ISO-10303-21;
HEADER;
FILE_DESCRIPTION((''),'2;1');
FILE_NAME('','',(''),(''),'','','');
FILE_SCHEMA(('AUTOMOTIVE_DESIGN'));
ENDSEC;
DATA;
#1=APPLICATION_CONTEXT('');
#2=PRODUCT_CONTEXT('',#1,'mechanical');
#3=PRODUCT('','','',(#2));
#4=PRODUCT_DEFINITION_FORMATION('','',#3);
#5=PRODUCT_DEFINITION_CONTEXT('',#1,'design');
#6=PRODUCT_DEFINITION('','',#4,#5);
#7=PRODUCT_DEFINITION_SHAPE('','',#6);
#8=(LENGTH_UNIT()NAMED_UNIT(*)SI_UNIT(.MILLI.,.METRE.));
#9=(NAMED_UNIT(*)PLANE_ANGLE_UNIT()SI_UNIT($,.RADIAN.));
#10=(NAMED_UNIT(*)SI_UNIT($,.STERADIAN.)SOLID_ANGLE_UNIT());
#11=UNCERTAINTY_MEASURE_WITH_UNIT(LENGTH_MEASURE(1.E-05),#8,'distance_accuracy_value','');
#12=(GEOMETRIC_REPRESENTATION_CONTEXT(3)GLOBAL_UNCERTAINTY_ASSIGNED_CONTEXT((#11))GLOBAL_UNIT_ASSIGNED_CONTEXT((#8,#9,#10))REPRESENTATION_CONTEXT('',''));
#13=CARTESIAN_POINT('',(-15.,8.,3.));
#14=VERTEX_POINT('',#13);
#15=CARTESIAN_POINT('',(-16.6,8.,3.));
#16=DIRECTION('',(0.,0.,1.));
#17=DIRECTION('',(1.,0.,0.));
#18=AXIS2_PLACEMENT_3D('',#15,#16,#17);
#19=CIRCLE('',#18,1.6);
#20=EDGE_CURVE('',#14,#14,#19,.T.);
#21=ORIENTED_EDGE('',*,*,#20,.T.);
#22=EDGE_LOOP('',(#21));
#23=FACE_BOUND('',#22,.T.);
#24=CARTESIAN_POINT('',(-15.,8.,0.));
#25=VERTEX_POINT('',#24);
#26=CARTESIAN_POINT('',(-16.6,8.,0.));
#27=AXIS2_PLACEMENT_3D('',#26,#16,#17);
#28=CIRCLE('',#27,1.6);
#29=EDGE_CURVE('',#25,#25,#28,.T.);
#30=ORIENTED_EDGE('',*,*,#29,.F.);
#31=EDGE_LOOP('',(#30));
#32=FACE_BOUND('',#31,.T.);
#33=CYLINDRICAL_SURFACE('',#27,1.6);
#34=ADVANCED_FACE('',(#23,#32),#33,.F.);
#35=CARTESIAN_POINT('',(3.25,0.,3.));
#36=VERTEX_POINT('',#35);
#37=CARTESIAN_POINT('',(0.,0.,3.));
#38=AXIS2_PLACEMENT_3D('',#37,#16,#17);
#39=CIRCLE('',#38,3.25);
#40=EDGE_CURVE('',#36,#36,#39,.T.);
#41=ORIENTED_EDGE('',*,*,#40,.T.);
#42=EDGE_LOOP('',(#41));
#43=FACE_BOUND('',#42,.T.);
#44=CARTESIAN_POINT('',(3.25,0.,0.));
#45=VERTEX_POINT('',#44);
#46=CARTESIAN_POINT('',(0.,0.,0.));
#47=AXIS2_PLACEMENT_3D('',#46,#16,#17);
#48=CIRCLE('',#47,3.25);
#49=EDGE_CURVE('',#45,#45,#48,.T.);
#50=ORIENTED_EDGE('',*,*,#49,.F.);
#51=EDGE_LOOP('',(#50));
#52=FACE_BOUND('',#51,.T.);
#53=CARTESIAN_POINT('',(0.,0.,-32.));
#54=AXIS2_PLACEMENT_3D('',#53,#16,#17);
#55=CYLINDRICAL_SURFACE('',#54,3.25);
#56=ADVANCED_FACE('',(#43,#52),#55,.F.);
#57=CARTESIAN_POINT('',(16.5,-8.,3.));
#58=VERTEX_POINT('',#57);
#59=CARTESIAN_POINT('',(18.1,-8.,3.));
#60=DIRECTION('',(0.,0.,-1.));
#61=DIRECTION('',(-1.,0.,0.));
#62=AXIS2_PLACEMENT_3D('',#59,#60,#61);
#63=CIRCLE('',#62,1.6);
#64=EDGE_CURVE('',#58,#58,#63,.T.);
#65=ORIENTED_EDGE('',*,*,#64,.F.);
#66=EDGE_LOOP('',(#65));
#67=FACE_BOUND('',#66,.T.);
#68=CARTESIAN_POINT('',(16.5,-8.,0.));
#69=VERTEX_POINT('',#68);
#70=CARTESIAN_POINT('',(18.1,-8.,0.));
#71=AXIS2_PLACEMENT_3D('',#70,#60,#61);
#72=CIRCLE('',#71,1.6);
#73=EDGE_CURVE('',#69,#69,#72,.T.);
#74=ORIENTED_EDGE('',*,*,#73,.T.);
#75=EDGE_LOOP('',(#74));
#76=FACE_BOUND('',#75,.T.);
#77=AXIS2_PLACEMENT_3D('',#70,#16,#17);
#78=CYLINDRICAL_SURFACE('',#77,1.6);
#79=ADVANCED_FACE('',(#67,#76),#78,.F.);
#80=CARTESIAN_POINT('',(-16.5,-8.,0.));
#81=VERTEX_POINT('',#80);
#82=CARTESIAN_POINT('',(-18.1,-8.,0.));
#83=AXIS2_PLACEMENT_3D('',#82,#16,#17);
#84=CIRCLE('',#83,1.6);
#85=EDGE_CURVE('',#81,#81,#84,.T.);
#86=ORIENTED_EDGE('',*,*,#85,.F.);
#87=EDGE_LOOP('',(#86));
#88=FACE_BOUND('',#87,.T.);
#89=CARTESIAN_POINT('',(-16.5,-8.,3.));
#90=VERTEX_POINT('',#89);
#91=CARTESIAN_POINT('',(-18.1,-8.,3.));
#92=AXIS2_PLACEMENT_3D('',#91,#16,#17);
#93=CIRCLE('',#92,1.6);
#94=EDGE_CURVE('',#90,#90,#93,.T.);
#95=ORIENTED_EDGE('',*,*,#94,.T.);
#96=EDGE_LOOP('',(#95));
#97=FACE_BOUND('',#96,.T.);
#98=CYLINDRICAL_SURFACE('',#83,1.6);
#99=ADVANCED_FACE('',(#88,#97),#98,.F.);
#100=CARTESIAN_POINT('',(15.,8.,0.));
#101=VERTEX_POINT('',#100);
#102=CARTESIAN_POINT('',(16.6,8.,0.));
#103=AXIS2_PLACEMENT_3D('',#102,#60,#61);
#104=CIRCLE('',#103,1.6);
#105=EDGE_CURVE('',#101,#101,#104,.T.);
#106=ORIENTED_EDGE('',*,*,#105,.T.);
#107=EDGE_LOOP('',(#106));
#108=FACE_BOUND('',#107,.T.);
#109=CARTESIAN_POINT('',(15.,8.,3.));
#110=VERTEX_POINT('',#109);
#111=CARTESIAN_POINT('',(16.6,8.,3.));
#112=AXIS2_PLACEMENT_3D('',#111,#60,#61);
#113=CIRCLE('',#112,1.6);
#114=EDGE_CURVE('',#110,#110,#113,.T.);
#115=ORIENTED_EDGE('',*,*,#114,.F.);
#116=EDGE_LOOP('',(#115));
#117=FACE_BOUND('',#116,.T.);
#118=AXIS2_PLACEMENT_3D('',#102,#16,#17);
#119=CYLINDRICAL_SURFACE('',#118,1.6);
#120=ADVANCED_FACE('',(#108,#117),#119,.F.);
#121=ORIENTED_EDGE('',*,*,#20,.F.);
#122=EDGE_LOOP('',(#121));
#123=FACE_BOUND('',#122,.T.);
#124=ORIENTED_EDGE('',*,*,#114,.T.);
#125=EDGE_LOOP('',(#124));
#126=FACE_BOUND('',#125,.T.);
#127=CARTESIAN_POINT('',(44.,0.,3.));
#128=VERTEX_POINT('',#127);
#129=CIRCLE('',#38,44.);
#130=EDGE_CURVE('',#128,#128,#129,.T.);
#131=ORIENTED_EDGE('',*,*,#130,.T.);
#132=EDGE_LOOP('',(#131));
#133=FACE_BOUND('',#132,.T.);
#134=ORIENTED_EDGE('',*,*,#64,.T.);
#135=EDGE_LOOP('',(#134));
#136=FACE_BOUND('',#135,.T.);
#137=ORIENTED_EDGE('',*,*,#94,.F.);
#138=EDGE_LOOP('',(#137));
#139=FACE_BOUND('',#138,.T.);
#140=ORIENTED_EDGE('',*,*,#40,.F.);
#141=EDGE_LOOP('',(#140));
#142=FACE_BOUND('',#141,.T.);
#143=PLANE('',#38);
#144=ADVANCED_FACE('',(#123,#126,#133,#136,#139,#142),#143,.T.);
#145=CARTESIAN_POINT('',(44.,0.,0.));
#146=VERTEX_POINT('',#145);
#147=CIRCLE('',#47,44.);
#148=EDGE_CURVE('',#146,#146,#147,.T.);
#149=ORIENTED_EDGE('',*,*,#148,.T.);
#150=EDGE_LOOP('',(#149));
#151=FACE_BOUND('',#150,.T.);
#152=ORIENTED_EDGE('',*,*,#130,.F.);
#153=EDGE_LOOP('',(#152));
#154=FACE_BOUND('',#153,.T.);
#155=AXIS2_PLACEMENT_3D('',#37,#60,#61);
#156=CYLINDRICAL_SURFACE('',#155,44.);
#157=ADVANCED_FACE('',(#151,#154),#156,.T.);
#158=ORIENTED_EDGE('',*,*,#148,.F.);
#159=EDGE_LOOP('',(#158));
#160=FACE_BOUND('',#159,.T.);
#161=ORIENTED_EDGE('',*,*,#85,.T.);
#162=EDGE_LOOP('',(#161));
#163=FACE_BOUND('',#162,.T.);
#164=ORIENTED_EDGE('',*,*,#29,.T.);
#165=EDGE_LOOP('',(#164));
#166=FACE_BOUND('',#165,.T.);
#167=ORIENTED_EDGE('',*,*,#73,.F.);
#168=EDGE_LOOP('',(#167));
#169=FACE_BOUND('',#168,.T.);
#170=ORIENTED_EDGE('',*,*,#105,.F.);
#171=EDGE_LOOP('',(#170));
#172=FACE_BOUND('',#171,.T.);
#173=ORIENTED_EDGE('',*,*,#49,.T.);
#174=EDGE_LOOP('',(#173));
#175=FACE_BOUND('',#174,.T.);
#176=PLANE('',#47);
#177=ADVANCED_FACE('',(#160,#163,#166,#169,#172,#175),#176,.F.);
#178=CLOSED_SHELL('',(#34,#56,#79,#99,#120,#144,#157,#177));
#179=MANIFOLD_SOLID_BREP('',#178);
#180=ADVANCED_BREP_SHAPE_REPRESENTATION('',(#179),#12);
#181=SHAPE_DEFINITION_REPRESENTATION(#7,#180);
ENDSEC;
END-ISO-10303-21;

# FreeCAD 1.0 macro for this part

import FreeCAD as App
import Part
import Sketcher

V = App.Vector

doc = App.newDocument("Part")
body = doc.addObject("PartDesign::Body", "Body")

sketch1 = body.newObject("Sketcher::SketchObject", "Sketch")
sketch1.AttachmentSupport = (doc.getObject("XY_Plane"), [""])
sketch1.MapMode = "FlatFace"
sketch1.addGeometry(Part.Circle(V(0, 0, 0), V(0, 0, 1), 44), False)
sketch1.addConstraint(Sketcher.Constraint("Coincident", 0, 3, -1, 1))
sketch1.addConstraint(Sketcher.Constraint("Diameter", 0, 88.0))
pad1 = body.newObject("PartDesign::Pad", "Pad")
pad1.Profile = sketch1
pad1.Length = 3

sketch2 = body.newObject("Sketcher::SketchObject", "Sketch001")
sketch2.AttachmentSupport = (doc.getObject("XY_Plane"), [""])
sketch2.MapMode = "FlatFace"
sketch2.AttachmentOffset = App.Placement(V(0, 0, 3), App.Rotation())
sketch2.addGeometry(Part.Circle(V(-16.6, 8, 0), V(0, 0, 1), 1.6), False)
sketch2.addGeometry(Part.Circle(V(-18.1, -8, 0), V(0, 0, 1), 1.6), False)
sketch2.addGeometry(Part.Circle(V(18.1, -8, 0), V(0, 0, 1), 1.6), False)
sketch2.addGeometry(Part.Circle(V(16.6, 8, 0), V(0, 0, 1), 1.6), False)
sketch2.addConstraint(Sketcher.Constraint("Equal", 0, 1))
sketch2.addConstraint(Sketcher.Constraint("Equal", 1, 2))
sketch2.addConstraint(Sketcher.Constraint("Equal", 2, 3))
sketch2.addConstraint(Sketcher.Constraint("Symmetric", 1, 3, 2, 3, -2))
sketch2.addConstraint(Sketcher.Constraint("Symmetric", 0, 3, 3, 3, -2))
sketch2.addConstraint(Sketcher.Constraint("Diameter", 0, 3.2))
sketch2.addConstraint(Sketcher.Constraint("DistanceY", -1, 1, 0, 3, 8.0))
sketch2.addConstraint(Sketcher.Constraint("DistanceY", 1, 3, -1, 1, 8.0))
sketch2.addConstraint(Sketcher.Constraint("DistanceX", 0, 3, -1, 1, 16.6))
sketch2.addConstraint(Sketcher.Constraint("DistanceX", 1, 3, -1, 1, 18.1))
pocket1 = body.newObject("PartDesign::Pocket", "Pocket")
pocket1.Profile = sketch2
pocket1.Length = 3

sketch3 = body.newObject("Sketcher::SketchObject", "Sketch002")
sketch3.AttachmentSupport = (doc.getObject("XY_Plane"), [""])
sketch3.MapMode = "FlatFace"
sketch3.AttachmentOffset = App.Placement(V(0, 0, 3), App.Rotation())
sketch3.addGeometry(Part.Circle(V(0, 0, 0), V(0, 0, 1), 3.25), False)
sketch3.addConstraint(Sketcher.Constraint("Coincident", 0, 3, -1, 1))
sketch3.addConstraint(Sketcher.Constraint("Diameter", 0, 6.5))
pocket2 = body.newObject("PartDesign::Pocket", "Pocket001")
pocket2.Profile = sketch3
pocket2.Length = 35

doc.recompute()
